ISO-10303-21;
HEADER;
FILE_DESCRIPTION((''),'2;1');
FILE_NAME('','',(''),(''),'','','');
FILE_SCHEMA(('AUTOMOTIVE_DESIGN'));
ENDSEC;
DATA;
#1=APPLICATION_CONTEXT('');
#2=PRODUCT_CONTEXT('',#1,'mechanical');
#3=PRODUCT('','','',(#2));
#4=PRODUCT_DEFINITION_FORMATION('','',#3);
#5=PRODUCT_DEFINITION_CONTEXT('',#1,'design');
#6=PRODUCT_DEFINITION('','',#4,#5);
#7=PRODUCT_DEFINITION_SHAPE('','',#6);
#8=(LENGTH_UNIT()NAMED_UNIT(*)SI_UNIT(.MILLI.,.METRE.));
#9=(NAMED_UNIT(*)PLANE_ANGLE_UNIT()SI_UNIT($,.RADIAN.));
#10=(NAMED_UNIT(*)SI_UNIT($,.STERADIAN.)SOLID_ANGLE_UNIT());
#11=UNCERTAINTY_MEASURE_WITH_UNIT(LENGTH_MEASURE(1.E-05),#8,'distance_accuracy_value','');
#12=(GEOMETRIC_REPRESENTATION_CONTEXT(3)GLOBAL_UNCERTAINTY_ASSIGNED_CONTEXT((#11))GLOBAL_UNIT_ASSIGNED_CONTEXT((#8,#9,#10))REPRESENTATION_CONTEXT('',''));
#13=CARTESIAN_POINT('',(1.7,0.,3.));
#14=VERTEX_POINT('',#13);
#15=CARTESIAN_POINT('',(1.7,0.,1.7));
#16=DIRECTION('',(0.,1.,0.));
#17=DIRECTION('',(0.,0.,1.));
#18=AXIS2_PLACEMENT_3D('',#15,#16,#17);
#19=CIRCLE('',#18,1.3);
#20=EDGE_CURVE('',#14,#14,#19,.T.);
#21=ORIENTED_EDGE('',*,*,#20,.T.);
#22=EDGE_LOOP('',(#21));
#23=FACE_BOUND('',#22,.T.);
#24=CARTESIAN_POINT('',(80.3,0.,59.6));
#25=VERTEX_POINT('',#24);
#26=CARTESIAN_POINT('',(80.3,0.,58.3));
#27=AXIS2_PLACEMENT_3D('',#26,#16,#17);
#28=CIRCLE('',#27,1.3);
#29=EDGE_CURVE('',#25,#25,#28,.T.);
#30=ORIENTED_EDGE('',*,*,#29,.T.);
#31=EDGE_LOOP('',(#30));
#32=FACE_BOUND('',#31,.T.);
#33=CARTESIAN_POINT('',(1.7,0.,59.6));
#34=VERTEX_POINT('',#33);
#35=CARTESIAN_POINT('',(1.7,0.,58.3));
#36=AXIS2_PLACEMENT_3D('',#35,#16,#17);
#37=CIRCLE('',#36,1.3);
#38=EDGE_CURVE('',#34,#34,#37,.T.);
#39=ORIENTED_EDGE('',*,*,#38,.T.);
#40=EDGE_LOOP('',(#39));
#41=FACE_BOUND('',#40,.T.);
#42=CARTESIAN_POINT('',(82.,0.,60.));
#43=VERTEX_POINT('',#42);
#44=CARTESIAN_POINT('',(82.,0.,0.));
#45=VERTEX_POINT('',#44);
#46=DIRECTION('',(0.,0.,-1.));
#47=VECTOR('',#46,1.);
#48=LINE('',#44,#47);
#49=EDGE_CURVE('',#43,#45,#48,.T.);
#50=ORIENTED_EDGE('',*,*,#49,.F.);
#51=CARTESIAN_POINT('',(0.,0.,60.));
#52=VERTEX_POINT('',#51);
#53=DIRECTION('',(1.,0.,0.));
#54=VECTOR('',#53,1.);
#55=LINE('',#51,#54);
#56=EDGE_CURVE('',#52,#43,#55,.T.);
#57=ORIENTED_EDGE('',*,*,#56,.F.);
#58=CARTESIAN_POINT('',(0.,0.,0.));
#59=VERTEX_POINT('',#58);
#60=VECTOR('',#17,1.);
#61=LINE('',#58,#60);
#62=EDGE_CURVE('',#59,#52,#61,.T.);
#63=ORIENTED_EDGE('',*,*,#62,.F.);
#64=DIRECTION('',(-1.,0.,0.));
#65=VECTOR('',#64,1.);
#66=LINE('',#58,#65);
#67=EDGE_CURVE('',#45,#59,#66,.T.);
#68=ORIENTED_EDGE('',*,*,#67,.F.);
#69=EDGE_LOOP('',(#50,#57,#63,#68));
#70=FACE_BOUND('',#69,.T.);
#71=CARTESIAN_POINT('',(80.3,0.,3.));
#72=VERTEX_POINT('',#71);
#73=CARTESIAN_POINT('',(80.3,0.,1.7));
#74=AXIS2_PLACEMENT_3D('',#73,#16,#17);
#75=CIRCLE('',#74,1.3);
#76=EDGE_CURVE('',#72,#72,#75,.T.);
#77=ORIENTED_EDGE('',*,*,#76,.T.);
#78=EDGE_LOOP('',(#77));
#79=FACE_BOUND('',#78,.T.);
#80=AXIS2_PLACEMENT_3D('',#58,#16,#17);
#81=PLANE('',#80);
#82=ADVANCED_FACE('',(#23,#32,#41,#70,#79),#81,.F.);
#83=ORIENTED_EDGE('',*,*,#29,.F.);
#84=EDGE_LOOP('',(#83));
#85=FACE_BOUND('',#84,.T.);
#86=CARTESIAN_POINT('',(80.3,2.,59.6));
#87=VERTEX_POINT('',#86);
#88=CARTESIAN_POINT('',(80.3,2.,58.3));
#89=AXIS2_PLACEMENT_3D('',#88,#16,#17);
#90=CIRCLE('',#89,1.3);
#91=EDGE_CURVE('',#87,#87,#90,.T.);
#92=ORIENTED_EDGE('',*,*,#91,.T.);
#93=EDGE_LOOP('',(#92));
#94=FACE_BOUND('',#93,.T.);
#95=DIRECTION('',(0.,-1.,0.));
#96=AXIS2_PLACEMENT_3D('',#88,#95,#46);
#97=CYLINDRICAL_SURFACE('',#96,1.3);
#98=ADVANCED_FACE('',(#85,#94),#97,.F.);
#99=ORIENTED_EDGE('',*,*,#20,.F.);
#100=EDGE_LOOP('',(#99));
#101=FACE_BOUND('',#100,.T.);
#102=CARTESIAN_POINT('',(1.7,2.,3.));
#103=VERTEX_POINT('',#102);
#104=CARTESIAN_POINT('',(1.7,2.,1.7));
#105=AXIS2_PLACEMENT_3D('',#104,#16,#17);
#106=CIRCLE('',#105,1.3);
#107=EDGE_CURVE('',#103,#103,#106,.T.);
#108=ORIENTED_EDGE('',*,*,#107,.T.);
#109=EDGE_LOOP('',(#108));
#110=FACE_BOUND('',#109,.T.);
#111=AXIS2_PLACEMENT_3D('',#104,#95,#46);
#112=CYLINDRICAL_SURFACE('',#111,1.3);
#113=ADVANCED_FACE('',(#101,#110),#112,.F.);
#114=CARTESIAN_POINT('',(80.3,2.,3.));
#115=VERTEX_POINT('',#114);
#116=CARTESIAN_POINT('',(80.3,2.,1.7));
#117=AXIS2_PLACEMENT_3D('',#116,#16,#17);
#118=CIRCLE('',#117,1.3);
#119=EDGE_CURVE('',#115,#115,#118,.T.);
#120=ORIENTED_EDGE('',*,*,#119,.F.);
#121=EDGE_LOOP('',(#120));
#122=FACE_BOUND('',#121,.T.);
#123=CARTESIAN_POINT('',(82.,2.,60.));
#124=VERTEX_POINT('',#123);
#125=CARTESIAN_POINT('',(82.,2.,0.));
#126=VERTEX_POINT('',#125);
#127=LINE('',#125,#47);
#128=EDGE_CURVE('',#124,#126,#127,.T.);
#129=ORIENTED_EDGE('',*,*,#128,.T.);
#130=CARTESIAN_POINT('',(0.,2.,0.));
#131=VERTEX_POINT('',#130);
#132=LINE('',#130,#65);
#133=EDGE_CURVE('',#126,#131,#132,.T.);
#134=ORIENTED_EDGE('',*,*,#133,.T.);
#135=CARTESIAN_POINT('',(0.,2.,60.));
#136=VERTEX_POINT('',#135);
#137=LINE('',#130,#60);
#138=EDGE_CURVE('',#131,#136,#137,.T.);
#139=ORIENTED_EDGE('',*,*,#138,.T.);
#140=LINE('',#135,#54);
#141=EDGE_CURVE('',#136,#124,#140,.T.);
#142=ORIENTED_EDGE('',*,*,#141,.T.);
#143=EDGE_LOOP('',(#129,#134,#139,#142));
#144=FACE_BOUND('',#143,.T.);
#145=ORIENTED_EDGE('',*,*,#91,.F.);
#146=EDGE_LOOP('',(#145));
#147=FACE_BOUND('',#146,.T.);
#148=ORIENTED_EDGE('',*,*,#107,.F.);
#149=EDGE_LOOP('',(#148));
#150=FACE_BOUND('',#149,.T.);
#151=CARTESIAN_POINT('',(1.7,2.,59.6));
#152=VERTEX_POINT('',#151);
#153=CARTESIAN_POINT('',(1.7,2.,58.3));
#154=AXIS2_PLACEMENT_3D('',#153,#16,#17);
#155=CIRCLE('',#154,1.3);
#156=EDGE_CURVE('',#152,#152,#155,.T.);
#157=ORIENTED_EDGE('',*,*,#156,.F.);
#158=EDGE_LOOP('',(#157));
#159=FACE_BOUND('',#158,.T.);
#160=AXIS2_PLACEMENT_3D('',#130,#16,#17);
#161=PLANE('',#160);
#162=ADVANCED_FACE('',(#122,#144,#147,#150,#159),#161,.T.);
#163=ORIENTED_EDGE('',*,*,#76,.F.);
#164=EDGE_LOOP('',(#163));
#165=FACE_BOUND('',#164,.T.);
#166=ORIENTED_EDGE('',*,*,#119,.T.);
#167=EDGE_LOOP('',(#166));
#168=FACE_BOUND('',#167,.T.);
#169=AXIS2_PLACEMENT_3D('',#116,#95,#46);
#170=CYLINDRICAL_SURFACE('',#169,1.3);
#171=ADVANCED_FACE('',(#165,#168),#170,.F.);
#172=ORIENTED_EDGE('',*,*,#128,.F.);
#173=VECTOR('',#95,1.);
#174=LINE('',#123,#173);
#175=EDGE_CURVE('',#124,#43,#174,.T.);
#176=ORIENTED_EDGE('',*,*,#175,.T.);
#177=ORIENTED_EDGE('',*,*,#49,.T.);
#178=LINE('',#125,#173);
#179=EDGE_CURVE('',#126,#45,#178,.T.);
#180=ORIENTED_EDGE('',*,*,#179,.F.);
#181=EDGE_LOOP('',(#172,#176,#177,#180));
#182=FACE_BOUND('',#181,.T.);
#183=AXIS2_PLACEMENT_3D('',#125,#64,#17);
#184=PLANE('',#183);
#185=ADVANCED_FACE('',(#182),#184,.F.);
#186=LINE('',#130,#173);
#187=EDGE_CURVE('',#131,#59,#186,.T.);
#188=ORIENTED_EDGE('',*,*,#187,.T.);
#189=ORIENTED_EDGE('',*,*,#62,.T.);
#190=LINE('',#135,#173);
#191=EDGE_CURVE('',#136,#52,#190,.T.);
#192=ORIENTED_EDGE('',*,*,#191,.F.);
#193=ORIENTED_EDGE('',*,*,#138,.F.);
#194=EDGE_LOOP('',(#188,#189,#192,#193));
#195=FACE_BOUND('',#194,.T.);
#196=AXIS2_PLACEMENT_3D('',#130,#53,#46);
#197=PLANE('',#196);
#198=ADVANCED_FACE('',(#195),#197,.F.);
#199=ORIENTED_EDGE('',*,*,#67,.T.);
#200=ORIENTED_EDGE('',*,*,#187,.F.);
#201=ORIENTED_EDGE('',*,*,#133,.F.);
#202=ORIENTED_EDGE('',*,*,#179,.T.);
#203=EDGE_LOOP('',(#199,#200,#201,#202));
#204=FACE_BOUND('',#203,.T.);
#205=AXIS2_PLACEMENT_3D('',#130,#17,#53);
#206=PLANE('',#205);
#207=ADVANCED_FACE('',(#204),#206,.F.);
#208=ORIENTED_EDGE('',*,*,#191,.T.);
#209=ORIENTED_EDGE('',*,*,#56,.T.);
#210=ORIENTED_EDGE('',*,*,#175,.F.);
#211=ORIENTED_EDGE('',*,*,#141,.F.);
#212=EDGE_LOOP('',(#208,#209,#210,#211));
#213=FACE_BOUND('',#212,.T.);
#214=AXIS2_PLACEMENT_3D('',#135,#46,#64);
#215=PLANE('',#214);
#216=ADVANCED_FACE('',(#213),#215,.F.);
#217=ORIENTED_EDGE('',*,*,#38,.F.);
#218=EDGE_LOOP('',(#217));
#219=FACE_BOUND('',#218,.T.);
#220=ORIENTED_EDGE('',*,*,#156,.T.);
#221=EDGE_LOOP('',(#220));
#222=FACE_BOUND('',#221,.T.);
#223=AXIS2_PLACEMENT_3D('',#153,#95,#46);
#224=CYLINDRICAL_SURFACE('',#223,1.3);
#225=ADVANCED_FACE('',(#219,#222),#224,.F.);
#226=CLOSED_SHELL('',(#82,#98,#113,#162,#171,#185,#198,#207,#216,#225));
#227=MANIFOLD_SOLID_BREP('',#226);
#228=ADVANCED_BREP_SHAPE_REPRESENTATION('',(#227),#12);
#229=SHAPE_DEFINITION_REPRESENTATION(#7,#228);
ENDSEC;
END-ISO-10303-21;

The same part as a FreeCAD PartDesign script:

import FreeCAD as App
import Part
import Sketcher
from FreeCAD import Vector
Q = App.Units.Quantity


def add_polygon(sketch, points):
    """Adds a closed chain of lines whose ends are joined by coincident constraints."""
    first, n = sketch.GeometryCount, len(points)
    for a, b in zip(points, points[1:] + points[:1]):
        sketch.addGeometry(Part.LineSegment(App.Vector(*a, 0), App.Vector(*b, 0)), False)
    for i in range(n):
        sketch.addConstraint(Sketcher.Constraint("Coincident", first + i, 2, first + (i + 1) % n, 1))

doc = App.newDocument("Part")
body = doc.addObject("PartDesign::Body", "Body")

# Sketch on XZ plane
sketch1 = body.newObject("Sketcher::SketchObject", "Sketch")
sketch1.AttachmentSupport = (doc.getObject("XZ_Plane"), [""])
sketch1.MapMode = "FlatFace"
add_polygon(sketch1, [(0, 0), (0, 60), (82, 60), (82, 0)])  # lines 0-3
sketch1.addGeometry(Part.Circle(Vector(1.7, 58.3, 0), Vector(0, 0, 1), 1.3), False)  # 4
sketch1.addGeometry(Part.Circle(Vector(80.3, 58.3, 0), Vector(0, 0, 1), 1.3), False)  # 5
sketch1.addGeometry(Part.Circle(Vector(1.7, 1.7, 0), Vector(0, 0, 1), 1.3), False)  # 6
sketch1.addGeometry(Part.Circle(Vector(80.3, 1.7, 0), Vector(0, 0, 1), 1.3), False)  # 7
sketch1.addConstraint([
    Sketcher.Constraint("Vertical", 0),
    Sketcher.Constraint("Horizontal", 1),
    Sketcher.Constraint("Vertical", 2),
    Sketcher.Constraint("Horizontal", 3),
    Sketcher.Constraint("Coincident", 3, 2, -1, 1),
    Sketcher.Constraint("Equal", 4, 5),
    Sketcher.Constraint("Equal", 5, 6),
    Sketcher.Constraint("Equal", 6, 7),
    Sketcher.Constraint("Horizontal", 4, 3, 5, 3),
    Sketcher.Constraint("Horizontal", 6, 3, 7, 3),
    Sketcher.Constraint("Vertical", 4, 3, 6, 3),
    Sketcher.Constraint("Vertical", 5, 3, 7, 3),
    Sketcher.Constraint("Diameter", 4, Q("2.6 mm")),
    Sketcher.Constraint("DistanceX", 1, 1, 1, 2, Q("82 mm")),
    Sketcher.Constraint("DistanceY", 0, 1, 0, 2, Q("60 mm")),
    Sketcher.Constraint("DistanceX", -1, 1, 4, 3, Q("1.7 mm")),
    Sketcher.Constraint("DistanceY", -1, 1, 4, 3, Q("58.3 mm")),
    Sketcher.Constraint("DistanceX", -1, 1, 5, 3, Q("80.3 mm")),
    Sketcher.Constraint("DistanceY", -1, 1, 6, 3, Q("1.7 mm")),
])
pad1 = body.newObject("PartDesign::Pad", "Pad")
pad1.Profile = sketch1
pad1.Length = 2
pad1.Reversed = True

doc.recompute()
